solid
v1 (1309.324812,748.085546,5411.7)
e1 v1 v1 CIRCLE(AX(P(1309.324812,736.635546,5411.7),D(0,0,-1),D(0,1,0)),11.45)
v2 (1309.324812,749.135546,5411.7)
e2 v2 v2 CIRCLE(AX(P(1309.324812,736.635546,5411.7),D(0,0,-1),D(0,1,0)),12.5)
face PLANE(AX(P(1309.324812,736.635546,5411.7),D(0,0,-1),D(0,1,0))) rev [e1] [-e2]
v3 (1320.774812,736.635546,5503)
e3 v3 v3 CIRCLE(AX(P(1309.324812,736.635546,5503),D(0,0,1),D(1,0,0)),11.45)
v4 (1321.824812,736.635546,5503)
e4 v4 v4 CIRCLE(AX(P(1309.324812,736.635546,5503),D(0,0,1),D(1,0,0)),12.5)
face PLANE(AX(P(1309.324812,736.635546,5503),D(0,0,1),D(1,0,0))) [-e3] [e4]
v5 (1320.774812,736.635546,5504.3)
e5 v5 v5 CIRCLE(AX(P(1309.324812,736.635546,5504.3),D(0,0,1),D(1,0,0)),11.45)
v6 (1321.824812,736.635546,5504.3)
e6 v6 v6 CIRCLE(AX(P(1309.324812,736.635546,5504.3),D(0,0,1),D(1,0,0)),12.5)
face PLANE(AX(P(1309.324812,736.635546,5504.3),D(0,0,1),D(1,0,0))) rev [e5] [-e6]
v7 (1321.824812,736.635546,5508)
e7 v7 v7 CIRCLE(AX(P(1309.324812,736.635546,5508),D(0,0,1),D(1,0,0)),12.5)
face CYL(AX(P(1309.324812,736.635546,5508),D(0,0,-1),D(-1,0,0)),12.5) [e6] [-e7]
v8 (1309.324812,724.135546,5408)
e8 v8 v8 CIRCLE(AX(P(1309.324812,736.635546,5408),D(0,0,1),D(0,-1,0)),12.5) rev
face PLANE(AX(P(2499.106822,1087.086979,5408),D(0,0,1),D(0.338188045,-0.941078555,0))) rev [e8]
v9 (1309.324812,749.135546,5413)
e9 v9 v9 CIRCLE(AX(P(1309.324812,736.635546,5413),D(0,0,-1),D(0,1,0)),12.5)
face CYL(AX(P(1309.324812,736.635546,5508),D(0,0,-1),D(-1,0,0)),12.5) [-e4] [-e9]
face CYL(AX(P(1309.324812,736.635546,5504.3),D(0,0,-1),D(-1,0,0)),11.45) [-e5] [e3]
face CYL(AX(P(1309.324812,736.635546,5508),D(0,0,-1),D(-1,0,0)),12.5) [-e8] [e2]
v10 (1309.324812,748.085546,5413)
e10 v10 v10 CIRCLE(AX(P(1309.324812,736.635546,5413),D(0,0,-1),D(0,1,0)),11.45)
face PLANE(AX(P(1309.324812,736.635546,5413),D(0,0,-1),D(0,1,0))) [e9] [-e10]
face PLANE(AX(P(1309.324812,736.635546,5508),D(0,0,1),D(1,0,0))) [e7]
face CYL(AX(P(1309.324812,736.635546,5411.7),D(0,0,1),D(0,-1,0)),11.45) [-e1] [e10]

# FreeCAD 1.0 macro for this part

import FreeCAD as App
import Part
import Sketcher
from FreeCAD import Vector


def add_polygon(sketch, points):
    """Adds a closed chain of lines whose ends are joined by coincident constraints."""
    first, n = sketch.GeometryCount, len(points)
    for a, b in zip(points, points[1:] + points[:1]):
        sketch.addGeometry(Part.LineSegment(App.Vector(*a, 0), App.Vector(*b, 0)), False)
    for i in range(n):
        sketch.addConstraint(Sketcher.Constraint("Coincident", first + i, 2, first + (i + 1) % n, 1))

doc = App.newDocument("Part")
params = doc.addObject("Spreadsheet::Sheet", "Params")
for row, (alias, value) in enumerate([
    ("sketch1_diameter", "25 mm"),
    ("pad1_length", "5 mm"),
    ("sketch2_diameter", "25 mm"),
    ("pad2_length", "95 mm"),
    ("sketch3_diameter", "22.9 mm"),
    ("pocket1_length", "1.3 mm"),
    ("sketch4_diameter", "22.9 mm"),
    ("pocket2_length", "1.3 mm"),
], start=1):
    params.set(f"A{row}", alias)
    params.set(f"B{row}", "=" + value)
    params.setAlias(f"B{row}", alias)

body = doc.addObject("PartDesign::Body", "Body")

sketch1 = body.newObject("Sketcher::SketchObject", "Sketch")
sketch1.AttachmentSupport = (doc.getObject("XY_Plane"), [""])
sketch1.MapMode = "FlatFace"
sketch1.AttachmentOffset = App.Placement(Vector(0, 0, 5503), App.Rotation())
sketch1.addGeometry(Part.Circle(Vector(1309.324812, 736.635546, 0), Vector(0, 0, 1), 12.5), False)
sketch1.addConstraint([
    Sketcher.Constraint("Diameter", 0, 25.0),
    Sketcher.Constraint("DistanceX", -1, 1, 0, 3, 1309.324812),
    Sketcher.Constraint("DistanceY", -1, 1, 0, 3, 736.635546),
])
sketch1.setExpression("Constraints[0]", "Params.sketch1_diameter")
pad1 = body.newObject("PartDesign::Pad", "Pad")
pad1.Profile = sketch1
pad1.setExpression("Length", "Params.pad1_length")

sketch2 = body.newObject("Sketcher::SketchObject", "Sketch001")
sketch2.AttachmentSupport = (doc.getObject("XY_Plane"), [""])
sketch2.MapMode = "FlatFace"
sketch2.AttachmentOffset = App.Placement(Vector(0, 0, 5503), App.Rotation())
sketch2.addGeometry(Part.Circle(Vector(1309.324812, 736.635546, 0), Vector(0, 0, 1), 12.5), False)
sketch2.addConstraint([
    Sketcher.Constraint("Diameter", 0, 25.0),
    Sketcher.Constraint("DistanceX", -1, 1, 0, 3, 1309.324812),
    Sketcher.Constraint("DistanceY", -1, 1, 0, 3, 736.635546),
])
sketch2.setExpression("Constraints[0]", "Params.sketch2_diameter")
pad2 = body.newObject("PartDesign::Pad", "Pad001")
pad2.Profile = sketch2
pad2.setExpression("Length", "Params.pad2_length")
pad2.Reversed = True

sketch3 = body.newObject("Sketcher::SketchObject", "Sketch002")
sketch3.AttachmentSupport = (doc.getObject("XY_Plane"), [""])
sketch3.MapMode = "FlatFace"
sketch3.AttachmentOffset = App.Placement(Vector(0, 0, 5503), App.Rotation())
add_polygon(sketch3, [(1285.218, 760.743), (1285.218, 712.529), (1333.432, 712.529), (1333.432, 760.743)])
sketch3.addGeometry(Part.Circle(Vector(1309.324812, 736.635546, 0), Vector(0, 0, 1), 11.45), False)
sketch3.addConstraint([
    Sketcher.Constraint("Vertical", 0),
    Sketcher.Constraint("Horizontal", 1),
    Sketcher.Constraint("Vertical", 2),
    Sketcher.Constraint("Horizontal", 3),
    Sketcher.Constraint("Equal", 3, 0),
    Sketcher.Constraint("Diameter", 4, 22.9),
    Sketcher.Constraint("DistanceX", 1, 1, 1, 2, 48.214),
    Sketcher.Constraint("DistanceX", -1, 1, 0, 2, 1285.218),
    Sketcher.Constraint("DistanceY", -1, 1, 0, 2, 712.529),
    Sketcher.Constraint("DistanceX", -1, 1, 4, 3, 1309.324812),
    Sketcher.Constraint("DistanceY", -1, 1, 4, 3, 736.635546),
])
sketch3.setExpression("Constraints[9]", "Params.sketch3_diameter")
pocket1 = body.newObject("PartDesign::Pocket", "Pocket")
pocket1.Profile = sketch3
pocket1.setExpression("Length", "Params.pocket1_length")
pocket1.Reversed = True

sketch4 = body.newObject("Sketcher::SketchObject", "Sketch003")
sketch4.AttachmentSupport = (doc.getObject("XY_Plane"), [""])
sketch4.MapMode = "FlatFace"
sketch4.AttachmentOffset = App.Placement(Vector(0, 0, 5413), App.Rotation())
add_polygon(sketch4, [(1333.432, 760.743), (1333.432, 712.529), (1285.218, 712.529), (1285.218, 760.743)])
sketch4.addGeometry(Part.Circle(Vector(1309.324812, 736.635546, 0), Vector(0, 0, 1), 11.45), False)
sketch4.addConstraint([
    Sketcher.Constraint("Vertical", 0),
    Sketcher.Constraint("Horizontal", 1),
    Sketcher.Constraint("Vertical", 2),
    Sketcher.Constraint("Horizontal", 3),
    Sketcher.Constraint("Equal", 3, 0),
    Sketcher.Constraint("Diameter", 4, 22.9),
    Sketcher.Constraint("DistanceX", 1, 2, 1, 1, 48.214),
    Sketcher.Constraint("DistanceX", -1, 1, 0, 2, 1333.432),
    Sketcher.Constraint("DistanceY", -1, 1, 0, 2, 712.529),
    Sketcher.Constraint("DistanceX", -1, 1, 4, 3, 1309.324812),
    Sketcher.Constraint("DistanceY", -1, 1, 4, 3, 736.635546),
])
sketch4.setExpression("Constraints[9]", "Params.sketch4_diameter")
pocket2 = body.newObject("PartDesign::Pocket", "Pocket001")
pocket2.Profile = sketch4
pocket2.setExpression("Length", "Params.pocket2_length")

doc.recompute()
